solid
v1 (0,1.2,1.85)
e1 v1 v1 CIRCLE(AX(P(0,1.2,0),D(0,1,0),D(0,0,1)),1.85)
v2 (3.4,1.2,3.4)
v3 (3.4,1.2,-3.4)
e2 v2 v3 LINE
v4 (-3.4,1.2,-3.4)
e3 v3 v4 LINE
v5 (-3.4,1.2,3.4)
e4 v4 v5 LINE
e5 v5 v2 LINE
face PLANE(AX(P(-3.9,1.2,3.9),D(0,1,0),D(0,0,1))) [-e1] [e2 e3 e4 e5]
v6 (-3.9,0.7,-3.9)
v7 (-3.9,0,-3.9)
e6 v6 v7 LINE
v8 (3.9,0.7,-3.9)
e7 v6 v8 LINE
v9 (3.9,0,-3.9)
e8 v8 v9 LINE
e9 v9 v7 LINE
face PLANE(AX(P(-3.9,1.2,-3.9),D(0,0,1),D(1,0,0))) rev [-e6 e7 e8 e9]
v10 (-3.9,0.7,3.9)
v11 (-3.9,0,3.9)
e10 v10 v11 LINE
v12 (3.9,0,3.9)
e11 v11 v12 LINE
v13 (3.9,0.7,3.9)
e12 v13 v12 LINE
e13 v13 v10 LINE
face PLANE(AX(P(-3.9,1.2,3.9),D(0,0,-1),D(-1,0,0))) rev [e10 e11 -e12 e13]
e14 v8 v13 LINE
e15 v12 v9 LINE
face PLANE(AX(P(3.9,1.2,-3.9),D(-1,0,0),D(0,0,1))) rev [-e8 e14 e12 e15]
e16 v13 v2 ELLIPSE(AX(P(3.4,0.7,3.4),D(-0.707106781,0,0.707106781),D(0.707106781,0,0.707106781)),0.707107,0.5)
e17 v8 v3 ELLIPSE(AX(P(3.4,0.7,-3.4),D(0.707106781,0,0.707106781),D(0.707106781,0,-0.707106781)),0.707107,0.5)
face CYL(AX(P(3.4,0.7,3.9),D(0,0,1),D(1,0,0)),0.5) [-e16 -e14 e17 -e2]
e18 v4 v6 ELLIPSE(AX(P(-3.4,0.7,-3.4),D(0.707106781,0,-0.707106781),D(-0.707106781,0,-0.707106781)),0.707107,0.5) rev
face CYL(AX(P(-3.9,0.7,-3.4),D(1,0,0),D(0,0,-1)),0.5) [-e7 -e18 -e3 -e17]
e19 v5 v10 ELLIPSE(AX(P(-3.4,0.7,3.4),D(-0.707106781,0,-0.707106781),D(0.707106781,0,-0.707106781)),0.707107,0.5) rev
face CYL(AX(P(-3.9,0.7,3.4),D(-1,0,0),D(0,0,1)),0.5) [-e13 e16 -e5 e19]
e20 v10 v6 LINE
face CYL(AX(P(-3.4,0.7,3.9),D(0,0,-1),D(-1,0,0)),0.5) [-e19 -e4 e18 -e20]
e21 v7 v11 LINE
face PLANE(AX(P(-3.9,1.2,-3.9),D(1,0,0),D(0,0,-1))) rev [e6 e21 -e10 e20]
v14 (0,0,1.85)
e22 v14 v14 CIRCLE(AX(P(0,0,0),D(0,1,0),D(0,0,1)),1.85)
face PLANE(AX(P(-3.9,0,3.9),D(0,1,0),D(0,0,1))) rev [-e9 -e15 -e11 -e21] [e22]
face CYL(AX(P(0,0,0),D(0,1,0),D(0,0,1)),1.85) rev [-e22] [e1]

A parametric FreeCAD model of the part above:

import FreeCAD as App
import Part
import Sketcher

V = App.Vector


def edges_at(feature, points):
    """Names of the edges that pass closest to the given points."""
    edges = feature.Shape.Edges
    near = lambda p: min(range(len(edges)), key=lambda i: edges[i].distToShape(Part.Vertex(*p))[0])
    return sorted({f"Edge{near(p) + 1}" for p in points})


def add_polygon(sketch, points):
    """Adds a closed chain of lines whose ends are joined by coincident constraints."""
    first, n = sketch.GeometryCount, len(points)
    for a, b in zip(points, points[1:] + points[:1]):
        sketch.addGeometry(Part.LineSegment(App.Vector(*a, 0), App.Vector(*b, 0)), False)
    for i in range(n):
        sketch.addConstraint(Sketcher.Constraint("Coincident", first + i, 2, first + (i + 1) % n, 1))

doc = App.newDocument("Part")
params = doc.addObject("Spreadsheet::Sheet", "Params")
for row, (alias, value) in enumerate([
    ("sketch1_width", "7.8 mm"),
    ("pad1_length", "1.2 mm"),
    ("sketch2_diameter", "3.7 mm"),
    ("pocket1_length", "1.2 mm"),
    ("fillet_radius", "0.5 mm"),
], start=1):
    params.set(f"A{row}", alias)
    params.set(f"B{row}", "=" + value)
    params.setAlias(f"B{row}", alias)

body = doc.addObject("PartDesign::Body", "Body")

# Sketch on XZ plane
sketch1 = doc.addObject("Sketcher::SketchObject", "Sketch")
body.addObject(sketch1)
sketch1.AttachmentSupport = (doc.XZ_Plane, [""])
sketch1.MapMode = "FlatFace"
add_polygon(sketch1, [(-4, -4), (-4, 4), (4, 4), (4, -4)])  # lines 0-3
sketch1.addConstraint(Sketcher.Constraint("Vertical", 0))
sketch1.addConstraint(Sketcher.Constraint("Horizontal", 1))
sketch1.addConstraint(Sketcher.Constraint("Vertical", 2))
sketch1.addConstraint(Sketcher.Constraint("Horizontal", 3))
sketch1.addConstraint(Sketcher.Constraint("Symmetric", 0, 2, 2, 2, -1, 1))
sketch1.addConstraint(Sketcher.Constraint("Equal", 3, 0))
sketch1.addConstraint(Sketcher.Constraint("DistanceX", 1, 1, 1, 2, 7.8))
sketch1.setExpression("Constraints[10]", "Params.sketch1_width")
pad1 = doc.addObject("PartDesign::Pad", "Pad")
body.addObject(pad1)
pad1.Profile = sketch1
pad1.setExpression("Length", "Params.pad1_length")
pad1.Reversed = True

# Sketch on XZ plane
sketch2 = doc.addObject("Sketcher::SketchObject", "Sketch001")
body.addObject(sketch2)
sketch2.AttachmentSupport = (doc.XZ_Plane, [""])
sketch2.MapMode = "FlatFace"
sketch2.AttachmentOffset = App.Placement(V(0, 0, -1.2), App.Rotation())
sketch2.addGeometry(Part.Circle(V(0, 0, 0), V(0, 0, 1), 1.9), False)
sketch2.addConstraint(Sketcher.Constraint("Coincident", 0, 3, -1, 1))
sketch2.addConstraint(Sketcher.Constraint("Diameter", 0, 3.7))
sketch2.setExpression("Constraints[1]", "Params.sketch2_diameter")
pocket1 = doc.addObject("PartDesign::Pocket", "Pocket")
body.addObject(pocket1)
pocket1.Profile = sketch2
pocket1.setExpression("Length", "Params.pocket1_length")
pocket1.Reversed = True
doc.recompute()

fillet = doc.addObject("PartDesign::Fillet", "Fillet")
body.addObject(fillet)
fillet.Base = (pocket1, edges_at(pocket1, [
    (3.9, 1.2, 0),
    (0, 1.2, -3.9),
    (-3.9, 1.2, 0),
    (0, 1.2, 3.9),
]))
fillet.setExpression("Radius", "Params.fillet_radius")

doc.recompute()
